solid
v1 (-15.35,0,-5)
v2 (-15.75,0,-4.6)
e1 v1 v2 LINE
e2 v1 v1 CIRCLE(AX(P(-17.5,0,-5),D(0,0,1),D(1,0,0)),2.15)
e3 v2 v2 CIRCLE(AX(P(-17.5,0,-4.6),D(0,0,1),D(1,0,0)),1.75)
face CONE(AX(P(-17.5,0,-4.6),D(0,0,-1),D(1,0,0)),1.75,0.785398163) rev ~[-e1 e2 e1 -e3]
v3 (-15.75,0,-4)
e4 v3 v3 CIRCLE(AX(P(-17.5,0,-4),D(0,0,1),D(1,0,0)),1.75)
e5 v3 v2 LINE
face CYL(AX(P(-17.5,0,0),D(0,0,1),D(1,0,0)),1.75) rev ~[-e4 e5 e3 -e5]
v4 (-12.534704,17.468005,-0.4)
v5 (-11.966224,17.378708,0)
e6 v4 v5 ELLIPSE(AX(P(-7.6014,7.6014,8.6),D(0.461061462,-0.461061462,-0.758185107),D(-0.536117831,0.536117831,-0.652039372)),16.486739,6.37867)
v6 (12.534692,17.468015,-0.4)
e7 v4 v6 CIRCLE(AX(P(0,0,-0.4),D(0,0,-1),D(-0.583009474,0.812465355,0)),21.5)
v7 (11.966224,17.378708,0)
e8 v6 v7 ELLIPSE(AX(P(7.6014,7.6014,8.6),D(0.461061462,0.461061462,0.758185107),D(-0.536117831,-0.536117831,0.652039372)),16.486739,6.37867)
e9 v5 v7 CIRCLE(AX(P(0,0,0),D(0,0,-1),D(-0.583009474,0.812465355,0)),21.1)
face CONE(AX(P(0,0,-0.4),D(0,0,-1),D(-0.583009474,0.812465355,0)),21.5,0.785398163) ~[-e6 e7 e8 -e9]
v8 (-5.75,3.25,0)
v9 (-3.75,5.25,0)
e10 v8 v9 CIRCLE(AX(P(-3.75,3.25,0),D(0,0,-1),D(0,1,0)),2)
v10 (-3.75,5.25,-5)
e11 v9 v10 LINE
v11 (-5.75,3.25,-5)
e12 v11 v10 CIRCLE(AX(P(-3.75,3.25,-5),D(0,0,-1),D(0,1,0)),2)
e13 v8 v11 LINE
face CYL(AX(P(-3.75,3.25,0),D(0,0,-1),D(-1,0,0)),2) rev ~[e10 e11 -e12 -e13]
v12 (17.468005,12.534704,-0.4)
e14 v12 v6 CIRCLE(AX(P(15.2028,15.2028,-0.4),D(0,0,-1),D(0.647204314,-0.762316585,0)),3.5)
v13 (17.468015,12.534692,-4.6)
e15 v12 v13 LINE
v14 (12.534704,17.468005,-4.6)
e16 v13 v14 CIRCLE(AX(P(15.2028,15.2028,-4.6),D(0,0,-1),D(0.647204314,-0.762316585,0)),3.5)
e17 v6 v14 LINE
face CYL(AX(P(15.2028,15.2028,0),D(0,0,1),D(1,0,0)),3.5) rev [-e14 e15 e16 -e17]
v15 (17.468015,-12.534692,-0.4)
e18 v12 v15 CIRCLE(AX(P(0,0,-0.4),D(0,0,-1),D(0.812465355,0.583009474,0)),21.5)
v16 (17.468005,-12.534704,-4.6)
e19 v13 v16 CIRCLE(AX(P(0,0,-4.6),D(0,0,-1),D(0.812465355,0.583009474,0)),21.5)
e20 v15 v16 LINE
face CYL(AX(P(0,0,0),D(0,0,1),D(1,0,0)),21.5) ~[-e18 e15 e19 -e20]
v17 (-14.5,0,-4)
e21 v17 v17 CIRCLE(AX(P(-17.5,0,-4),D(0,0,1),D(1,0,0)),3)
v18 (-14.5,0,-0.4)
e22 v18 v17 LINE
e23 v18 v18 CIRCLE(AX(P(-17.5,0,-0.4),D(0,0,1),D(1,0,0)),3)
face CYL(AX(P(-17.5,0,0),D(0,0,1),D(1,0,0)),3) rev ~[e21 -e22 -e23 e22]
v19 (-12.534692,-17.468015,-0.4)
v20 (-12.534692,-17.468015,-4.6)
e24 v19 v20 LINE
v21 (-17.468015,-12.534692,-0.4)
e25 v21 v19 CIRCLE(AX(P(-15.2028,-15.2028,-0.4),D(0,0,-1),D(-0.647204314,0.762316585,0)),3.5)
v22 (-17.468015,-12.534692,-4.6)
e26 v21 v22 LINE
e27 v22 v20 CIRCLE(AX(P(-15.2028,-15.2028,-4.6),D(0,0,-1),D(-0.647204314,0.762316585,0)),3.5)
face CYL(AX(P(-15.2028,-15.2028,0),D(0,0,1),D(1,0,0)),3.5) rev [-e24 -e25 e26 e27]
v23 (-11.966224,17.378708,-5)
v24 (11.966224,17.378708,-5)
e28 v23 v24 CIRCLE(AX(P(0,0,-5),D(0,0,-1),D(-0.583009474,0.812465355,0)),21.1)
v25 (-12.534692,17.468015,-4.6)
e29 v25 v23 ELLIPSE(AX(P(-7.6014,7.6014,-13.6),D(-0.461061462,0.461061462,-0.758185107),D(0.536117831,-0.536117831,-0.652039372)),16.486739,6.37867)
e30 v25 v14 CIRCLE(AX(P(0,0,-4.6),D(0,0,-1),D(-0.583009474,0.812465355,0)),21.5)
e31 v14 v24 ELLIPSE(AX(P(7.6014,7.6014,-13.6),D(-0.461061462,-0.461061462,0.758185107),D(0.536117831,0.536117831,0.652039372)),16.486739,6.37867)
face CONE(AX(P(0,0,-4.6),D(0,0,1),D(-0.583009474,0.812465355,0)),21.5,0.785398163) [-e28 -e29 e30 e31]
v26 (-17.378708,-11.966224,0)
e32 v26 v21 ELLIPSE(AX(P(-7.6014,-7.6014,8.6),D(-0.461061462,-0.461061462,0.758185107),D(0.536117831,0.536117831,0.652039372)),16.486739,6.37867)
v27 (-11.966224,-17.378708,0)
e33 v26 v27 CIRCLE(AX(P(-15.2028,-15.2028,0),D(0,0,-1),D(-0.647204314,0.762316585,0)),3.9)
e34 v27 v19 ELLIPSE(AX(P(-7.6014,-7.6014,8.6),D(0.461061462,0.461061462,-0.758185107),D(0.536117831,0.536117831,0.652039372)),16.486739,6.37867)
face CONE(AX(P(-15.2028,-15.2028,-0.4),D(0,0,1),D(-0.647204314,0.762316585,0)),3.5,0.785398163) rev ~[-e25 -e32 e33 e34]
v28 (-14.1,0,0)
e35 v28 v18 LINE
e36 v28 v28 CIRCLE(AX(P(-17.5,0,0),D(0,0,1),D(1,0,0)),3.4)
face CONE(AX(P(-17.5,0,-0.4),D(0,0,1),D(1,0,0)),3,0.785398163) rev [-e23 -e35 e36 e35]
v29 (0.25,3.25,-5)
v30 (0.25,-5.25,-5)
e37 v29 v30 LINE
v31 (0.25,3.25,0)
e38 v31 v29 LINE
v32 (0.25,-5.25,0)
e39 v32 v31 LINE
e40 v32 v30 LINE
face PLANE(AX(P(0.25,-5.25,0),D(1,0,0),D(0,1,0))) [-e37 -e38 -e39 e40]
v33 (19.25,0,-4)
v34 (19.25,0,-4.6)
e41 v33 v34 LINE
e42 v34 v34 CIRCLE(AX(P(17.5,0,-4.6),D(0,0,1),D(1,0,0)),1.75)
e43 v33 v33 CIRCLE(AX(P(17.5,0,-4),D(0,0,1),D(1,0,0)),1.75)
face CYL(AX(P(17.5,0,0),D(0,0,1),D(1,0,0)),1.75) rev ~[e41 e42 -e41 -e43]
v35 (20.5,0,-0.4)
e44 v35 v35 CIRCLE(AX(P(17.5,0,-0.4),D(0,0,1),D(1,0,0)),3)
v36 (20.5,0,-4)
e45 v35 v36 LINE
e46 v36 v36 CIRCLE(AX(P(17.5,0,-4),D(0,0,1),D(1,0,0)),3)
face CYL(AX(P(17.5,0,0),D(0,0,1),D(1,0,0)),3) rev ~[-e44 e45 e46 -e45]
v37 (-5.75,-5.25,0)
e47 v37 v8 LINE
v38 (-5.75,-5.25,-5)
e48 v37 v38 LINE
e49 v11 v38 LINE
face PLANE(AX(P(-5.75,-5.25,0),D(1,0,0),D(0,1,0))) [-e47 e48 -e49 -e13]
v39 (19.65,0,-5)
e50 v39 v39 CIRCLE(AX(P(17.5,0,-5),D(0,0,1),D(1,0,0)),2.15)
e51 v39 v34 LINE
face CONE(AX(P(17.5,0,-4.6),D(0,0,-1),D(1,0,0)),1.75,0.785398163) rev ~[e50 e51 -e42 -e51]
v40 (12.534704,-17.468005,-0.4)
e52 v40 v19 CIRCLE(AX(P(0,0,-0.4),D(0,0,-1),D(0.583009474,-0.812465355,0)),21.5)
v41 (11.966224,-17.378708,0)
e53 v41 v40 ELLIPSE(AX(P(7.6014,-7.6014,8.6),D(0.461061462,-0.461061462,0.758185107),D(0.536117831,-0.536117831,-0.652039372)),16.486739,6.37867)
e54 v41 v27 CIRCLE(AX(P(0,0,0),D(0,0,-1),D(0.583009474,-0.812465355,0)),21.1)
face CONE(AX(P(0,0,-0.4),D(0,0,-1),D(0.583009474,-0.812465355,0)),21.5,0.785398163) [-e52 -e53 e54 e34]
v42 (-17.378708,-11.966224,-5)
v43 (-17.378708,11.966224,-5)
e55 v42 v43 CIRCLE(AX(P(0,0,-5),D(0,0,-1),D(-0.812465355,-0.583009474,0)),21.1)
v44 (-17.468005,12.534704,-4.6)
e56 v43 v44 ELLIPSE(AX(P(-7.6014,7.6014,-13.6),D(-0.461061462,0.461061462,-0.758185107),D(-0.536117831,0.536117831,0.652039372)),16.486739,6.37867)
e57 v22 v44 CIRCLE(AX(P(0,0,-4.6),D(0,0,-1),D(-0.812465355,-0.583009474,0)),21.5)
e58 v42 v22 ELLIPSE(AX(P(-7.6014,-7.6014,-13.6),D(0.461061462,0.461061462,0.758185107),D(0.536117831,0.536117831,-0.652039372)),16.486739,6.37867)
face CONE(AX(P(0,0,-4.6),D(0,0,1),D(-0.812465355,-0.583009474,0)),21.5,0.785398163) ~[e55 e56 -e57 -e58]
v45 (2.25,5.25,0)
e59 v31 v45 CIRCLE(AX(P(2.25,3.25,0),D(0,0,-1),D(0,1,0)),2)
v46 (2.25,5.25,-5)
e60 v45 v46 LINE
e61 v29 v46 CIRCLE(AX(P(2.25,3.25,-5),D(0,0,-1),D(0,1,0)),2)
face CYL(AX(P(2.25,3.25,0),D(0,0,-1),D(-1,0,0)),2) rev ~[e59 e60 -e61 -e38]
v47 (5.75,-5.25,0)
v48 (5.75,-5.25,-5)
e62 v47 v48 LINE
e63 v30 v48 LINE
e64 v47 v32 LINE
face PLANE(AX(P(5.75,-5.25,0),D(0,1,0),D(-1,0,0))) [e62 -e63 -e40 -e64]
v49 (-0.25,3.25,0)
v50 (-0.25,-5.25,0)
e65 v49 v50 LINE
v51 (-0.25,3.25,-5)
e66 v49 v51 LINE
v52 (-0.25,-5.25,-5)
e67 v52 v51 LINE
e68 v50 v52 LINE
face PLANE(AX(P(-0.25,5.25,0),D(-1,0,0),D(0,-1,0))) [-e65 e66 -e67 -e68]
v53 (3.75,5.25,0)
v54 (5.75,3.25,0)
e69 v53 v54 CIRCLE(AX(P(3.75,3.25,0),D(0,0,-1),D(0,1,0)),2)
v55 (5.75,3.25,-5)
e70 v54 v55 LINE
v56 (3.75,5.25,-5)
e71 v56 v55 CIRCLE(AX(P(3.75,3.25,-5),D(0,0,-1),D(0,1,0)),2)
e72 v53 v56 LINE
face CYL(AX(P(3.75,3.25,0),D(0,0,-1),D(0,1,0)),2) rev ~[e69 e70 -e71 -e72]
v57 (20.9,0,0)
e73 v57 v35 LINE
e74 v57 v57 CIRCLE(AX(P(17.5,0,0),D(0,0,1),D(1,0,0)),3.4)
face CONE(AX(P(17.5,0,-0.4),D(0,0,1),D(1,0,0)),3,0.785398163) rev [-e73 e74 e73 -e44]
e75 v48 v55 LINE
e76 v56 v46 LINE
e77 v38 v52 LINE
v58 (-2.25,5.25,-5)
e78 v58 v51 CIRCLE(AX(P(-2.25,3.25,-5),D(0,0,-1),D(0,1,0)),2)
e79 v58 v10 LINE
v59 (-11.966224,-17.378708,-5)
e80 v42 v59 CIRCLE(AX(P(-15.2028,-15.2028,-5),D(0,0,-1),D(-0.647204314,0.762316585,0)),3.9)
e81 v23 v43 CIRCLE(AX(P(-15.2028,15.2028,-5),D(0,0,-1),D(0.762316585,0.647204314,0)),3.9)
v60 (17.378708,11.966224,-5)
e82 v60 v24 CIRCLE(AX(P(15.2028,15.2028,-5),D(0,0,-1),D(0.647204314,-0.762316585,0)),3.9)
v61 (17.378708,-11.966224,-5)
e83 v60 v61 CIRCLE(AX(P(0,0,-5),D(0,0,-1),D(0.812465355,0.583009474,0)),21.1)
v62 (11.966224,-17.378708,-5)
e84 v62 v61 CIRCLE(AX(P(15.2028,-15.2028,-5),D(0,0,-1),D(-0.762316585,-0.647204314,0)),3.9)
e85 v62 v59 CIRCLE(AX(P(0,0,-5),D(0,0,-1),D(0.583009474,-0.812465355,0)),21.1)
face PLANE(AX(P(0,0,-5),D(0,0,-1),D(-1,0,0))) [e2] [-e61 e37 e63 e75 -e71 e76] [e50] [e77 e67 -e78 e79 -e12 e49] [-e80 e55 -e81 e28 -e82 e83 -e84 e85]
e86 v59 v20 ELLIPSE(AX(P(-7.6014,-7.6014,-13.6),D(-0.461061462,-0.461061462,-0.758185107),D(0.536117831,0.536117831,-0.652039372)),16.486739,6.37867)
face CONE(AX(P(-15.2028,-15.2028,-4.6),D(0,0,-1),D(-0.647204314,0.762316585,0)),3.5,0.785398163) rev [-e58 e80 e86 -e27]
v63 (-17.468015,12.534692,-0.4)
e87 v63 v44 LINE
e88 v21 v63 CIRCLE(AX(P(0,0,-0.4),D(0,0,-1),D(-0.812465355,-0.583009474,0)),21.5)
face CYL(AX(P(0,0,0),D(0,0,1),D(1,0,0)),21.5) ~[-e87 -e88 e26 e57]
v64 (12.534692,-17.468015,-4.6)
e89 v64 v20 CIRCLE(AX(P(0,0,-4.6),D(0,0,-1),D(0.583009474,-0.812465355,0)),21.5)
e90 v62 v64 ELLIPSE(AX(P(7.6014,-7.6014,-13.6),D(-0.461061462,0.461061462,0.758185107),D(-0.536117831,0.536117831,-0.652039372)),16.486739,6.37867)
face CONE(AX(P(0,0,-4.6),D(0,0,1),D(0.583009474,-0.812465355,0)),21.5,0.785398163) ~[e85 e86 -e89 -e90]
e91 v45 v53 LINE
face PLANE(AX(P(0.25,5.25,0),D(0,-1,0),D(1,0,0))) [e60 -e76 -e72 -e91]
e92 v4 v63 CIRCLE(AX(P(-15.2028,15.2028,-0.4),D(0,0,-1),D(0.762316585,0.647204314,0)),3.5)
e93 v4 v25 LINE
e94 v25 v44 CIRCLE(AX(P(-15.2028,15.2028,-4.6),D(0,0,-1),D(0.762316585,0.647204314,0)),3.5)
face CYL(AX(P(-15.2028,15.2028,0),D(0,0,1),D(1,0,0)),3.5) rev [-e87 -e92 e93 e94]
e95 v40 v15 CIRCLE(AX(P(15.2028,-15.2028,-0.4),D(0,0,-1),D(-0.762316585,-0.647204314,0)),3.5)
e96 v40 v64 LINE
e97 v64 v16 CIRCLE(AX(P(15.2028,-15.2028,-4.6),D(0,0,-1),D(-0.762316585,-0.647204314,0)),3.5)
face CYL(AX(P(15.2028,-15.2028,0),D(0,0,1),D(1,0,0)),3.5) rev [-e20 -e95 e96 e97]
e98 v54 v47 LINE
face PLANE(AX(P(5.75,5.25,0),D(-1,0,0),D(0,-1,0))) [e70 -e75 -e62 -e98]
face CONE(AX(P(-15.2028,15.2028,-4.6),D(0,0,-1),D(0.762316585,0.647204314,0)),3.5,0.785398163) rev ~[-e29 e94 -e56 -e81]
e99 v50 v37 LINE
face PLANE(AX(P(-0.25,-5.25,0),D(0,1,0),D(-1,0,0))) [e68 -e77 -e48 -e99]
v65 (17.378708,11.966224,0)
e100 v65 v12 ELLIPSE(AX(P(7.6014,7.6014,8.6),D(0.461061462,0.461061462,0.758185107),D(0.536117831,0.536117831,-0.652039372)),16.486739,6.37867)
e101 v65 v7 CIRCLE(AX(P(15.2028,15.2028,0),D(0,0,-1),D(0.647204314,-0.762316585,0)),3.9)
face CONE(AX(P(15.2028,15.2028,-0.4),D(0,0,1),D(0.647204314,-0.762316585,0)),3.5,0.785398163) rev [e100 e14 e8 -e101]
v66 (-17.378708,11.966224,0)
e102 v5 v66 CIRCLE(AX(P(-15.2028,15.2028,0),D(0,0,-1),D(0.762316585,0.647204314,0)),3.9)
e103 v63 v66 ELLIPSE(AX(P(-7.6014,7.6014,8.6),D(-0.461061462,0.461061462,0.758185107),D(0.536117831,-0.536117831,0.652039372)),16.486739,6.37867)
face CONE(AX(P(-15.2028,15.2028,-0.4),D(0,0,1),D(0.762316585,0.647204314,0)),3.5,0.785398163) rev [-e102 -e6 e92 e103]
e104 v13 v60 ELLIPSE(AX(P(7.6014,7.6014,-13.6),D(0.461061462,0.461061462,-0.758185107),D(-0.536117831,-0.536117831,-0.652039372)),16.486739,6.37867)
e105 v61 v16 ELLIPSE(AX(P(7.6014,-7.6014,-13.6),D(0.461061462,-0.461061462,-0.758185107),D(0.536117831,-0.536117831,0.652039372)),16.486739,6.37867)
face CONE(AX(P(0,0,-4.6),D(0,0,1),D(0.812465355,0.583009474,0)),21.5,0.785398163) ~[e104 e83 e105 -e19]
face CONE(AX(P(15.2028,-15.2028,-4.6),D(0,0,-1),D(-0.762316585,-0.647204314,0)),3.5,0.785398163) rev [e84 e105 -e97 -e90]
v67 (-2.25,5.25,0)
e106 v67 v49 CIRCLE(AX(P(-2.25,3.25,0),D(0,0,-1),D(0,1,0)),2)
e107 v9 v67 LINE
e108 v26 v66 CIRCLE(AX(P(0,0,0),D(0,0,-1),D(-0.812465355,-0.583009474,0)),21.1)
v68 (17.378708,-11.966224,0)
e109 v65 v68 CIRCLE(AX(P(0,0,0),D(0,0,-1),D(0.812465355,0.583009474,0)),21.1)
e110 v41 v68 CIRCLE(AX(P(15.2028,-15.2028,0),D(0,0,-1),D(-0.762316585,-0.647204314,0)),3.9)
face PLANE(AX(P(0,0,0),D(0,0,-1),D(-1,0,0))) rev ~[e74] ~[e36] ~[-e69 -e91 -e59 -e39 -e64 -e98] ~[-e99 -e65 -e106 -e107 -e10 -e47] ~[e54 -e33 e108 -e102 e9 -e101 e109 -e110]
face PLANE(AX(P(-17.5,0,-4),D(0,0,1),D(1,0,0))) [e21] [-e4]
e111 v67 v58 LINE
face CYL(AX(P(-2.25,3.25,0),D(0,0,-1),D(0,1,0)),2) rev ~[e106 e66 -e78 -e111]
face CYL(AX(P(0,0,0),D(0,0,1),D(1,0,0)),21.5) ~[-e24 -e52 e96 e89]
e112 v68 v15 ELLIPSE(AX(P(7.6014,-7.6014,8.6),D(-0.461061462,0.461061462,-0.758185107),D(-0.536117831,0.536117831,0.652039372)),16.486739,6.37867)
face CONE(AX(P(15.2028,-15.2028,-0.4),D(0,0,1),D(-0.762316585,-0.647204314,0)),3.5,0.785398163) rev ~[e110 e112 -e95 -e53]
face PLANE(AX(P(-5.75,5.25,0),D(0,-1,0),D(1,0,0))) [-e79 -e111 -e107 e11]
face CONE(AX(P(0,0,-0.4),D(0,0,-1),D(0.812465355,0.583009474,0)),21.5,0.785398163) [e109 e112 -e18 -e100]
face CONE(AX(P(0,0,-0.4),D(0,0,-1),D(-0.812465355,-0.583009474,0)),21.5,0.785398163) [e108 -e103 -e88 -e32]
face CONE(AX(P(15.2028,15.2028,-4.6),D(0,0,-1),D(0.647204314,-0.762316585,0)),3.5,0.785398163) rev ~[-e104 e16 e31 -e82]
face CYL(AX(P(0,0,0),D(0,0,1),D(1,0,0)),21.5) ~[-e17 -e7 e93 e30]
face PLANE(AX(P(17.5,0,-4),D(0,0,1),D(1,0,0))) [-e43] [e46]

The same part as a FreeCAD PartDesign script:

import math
import FreeCAD as App
import Part
import Sketcher

V = App.Vector


def edges_at(feature, points):
    """Names of the edges that pass closest to the given points."""
    edges = feature.Shape.Edges
    near = lambda p: min(range(len(edges)), key=lambda i: edges[i].distToShape(Part.Vertex(*p))[0])
    return sorted({f"Edge{near(p) + 1}" for p in points})


def add_polygon(sketch, points):
    """Adds a closed chain of lines whose ends are joined by coincident constraints."""
    first, n = sketch.GeometryCount, len(points)
    for a, b in zip(points, points[1:] + points[:1]):
        sketch.addGeometry(Part.LineSegment(App.Vector(*a, 0), App.Vector(*b, 0)), False)
    for i in range(n):
        sketch.addConstraint(Sketcher.Constraint("Coincident", first + i, 2, first + (i + 1) % n, 1))

doc = App.newDocument("Part")
params = doc.addObject("Spreadsheet::Sheet", "Params")
for row, (alias, value) in enumerate([
    ("sketch1_radius", "21.5 mm"),
    ("sketch1_radius2", "3.5 mm"),
    ("pad1_length", "5 mm"),
    ("sketch2_diameter", "3.5 mm"),
    ("sketch3_diameter", "6 mm"),
    ("pocket2_length", "4 mm"),
    ("chamfer_size", "0.4 mm"),
    ("sketch4_width", "5.5 mm"),
    ("sketch4_height", "10.5 mm"),
    ("fillet_radius", "2 mm"),
], start=1):
    params.set(f"A{row}", alias)
    params.set(f"B{row}", "=" + value)
    params.setAlias(f"B{row}", alias)

body = doc.addObject("PartDesign::Body", "Body")

# Sketch on XY plane
sketch1 = body.newObject("Sketcher::SketchObject", "Sketch")
sketch1.AttachmentSupport = (doc.getObject("XY_Plane"), [""])
sketch1.MapMode = "FlatFace"
sketch1.addGeometry(Part.ArcOfCircle(Part.Circle(V(0, 0, 0), V(0, 0, 1), 21.499994), math.radians(54.337507), math.radians(125.662493)), False)
sketch1.addGeometry(Part.ArcOfCircle(Part.Circle(V(-15.2028, 15.2028, 0), V(0, 0, 1), 3.499984), math.radians(-130.331046), math.radians(40.331046)), False)
sketch1.addGeometry(Part.ArcOfCircle(Part.Circle(V(0, 0, 0), V(0, 0, 1), 21.499994), math.radians(144.337507), math.radians(215.662493)), False)
sketch1.addGeometry(Part.ArcOfCircle(Part.Circle(V(-15.2028, -15.2028, 0), V(0, 0, 1), 3.499984), math.radians(-40.331046), math.radians(130.331046)), False)
sketch1.addGeometry(Part.ArcOfCircle(Part.Circle(V(0, 0, 0), V(0, 0, 1), 21.499994), math.radians(-125.662493), math.radians(-54.337507)), False)
sketch1.addGeometry(Part.ArcOfCircle(Part.Circle(V(15.2028, -15.2028, 0), V(0, 0, 1), 3.499984), math.radians(49.668954), math.radians(220.331046)), False)
sketch1.addGeometry(Part.ArcOfCircle(Part.Circle(V(0, 0, 0), V(0, 0, 1), 21.499994), math.radians(-35.662493), math.radians(35.662493)), False)
sketch1.addGeometry(Part.ArcOfCircle(Part.Circle(V(15.2028, 15.2028, 0), V(0, 0, 1), 3.499984), math.radians(139.668954), math.radians(310.331046)), False)
sketch1.addConstraint(Sketcher.Constraint("Coincident", 0, 2, 1, 2))
sketch1.addConstraint(Sketcher.Constraint("Coincident", 1, 1, 2, 1))
sketch1.addConstraint(Sketcher.Constraint("Coincident", 2, 2, 3, 2))
sketch1.addConstraint(Sketcher.Constraint("Coincident", 3, 1, 4, 1))
sketch1.addConstraint(Sketcher.Constraint("Coincident", 4, 2, 5, 2))
sketch1.addConstraint(Sketcher.Constraint("Coincident", 5, 1, 6, 1))
sketch1.addConstraint(Sketcher.Constraint("Coincident", 6, 2, 7, 2))
sketch1.addConstraint(Sketcher.Constraint("Coincident", 7, 1, 0, 1))
sketch1.addConstraint(Sketcher.Constraint("Coincident", 0, 3, -1, 1))
sketch1.addConstraint(Sketcher.Constraint("Coincident", 2, 3, -1, 1))
sketch1.addConstraint(Sketcher.Constraint("Coincident", 4, 3, -1, 1))
sketch1.addConstraint(Sketcher.Constraint("Coincident", 6, 3, -1, 1))
sketch1.addConstraint(Sketcher.Constraint("Equal", 0, 2))
sketch1.addConstraint(Sketcher.Constraint("Equal", 1, 3))
sketch1.addConstraint(Sketcher.Constraint("Equal", 2, 4))
sketch1.addConstraint(Sketcher.Constraint("Equal", 3, 5))
sketch1.addConstraint(Sketcher.Constraint("Equal", 4, 6))
sketch1.addConstraint(Sketcher.Constraint("Equal", 5, 7))
sketch1.addConstraint(Sketcher.Constraint("Symmetric", 1, 3, 5, 3, -1, 1))
sketch1.addConstraint(Sketcher.Constraint("Symmetric", 3, 3, 7, 3, -1, 1))
sketch1.addConstraint(Sketcher.Constraint("Symmetric", 3, 3, 5, 3, -2))
sketch1.addConstraint(Sketcher.Constraint("Radius", 0, 21.5))
sketch1.addConstraint(Sketcher.Constraint("Radius", 1, 3.5))
sketch1.addConstraint(Sketcher.Constraint("DistanceY", -1, 1, 0, 2, 17.468))
sketch1.addConstraint(Sketcher.Constraint("DistanceX", 1, 1, -1, 1, 17.468))
sketch1.setExpression("Constraints[21]", "Params.sketch1_radius")
sketch1.setExpression("Constraints[22]", "Params.sketch1_radius2")
pad1 = body.newObject("PartDesign::Pad", "Pad")
pad1.Profile = sketch1
pad1.setExpression("Length", "Params.pad1_length")
pad1.Reversed = True

# Sketch on XY plane
sketch2 = body.newObject("Sketcher::SketchObject", "Sketch001")
sketch2.AttachmentSupport = (doc.getObject("XY_Plane"), [""])
sketch2.MapMode = "FlatFace"
sketch2.addGeometry(Part.Circle(V(-17.5, 0, 0), V(0, 0, 1), 1.75), False)
sketch2.addGeometry(Part.Circle(V(17.5, 0, 0), V(0, 0, 1), 1.75), False)
sketch2.addConstraint(Sketcher.Constraint("Equal", 0, 1))
sketch2.addConstraint(Sketcher.Constraint("Symmetric", 0, 3, 1, 3, -1, 1))
sketch2.addConstraint(Sketcher.Constraint("PointOnObject", 0, 3, -1))
sketch2.addConstraint(Sketcher.Constraint("Diameter", 0, 3.5))
sketch2.addConstraint(Sketcher.Constraint("DistanceX", 0, 3, 1, 3, 35.0))
sketch2.setExpression("Constraints[3]", "Params.sketch2_diameter")
pocket1 = body.newObject("PartDesign::Pocket", "Pocket")
pocket1.Profile = sketch2
pocket1.Type = "ThroughAll"

# Sketch on XY plane
sketch3 = body.newObject("Sketcher::SketchObject", "Sketch002")
sketch3.AttachmentSupport = (doc.getObject("XY_Plane"), [""])
sketch3.MapMode = "FlatFace"
sketch3.addGeometry(Part.Circle(V(-17.5, 0, 0), V(0, 0, 1), 3), False)
sketch3.addGeometry(Part.Circle(V(17.5, 0, 0), V(0, 0, 1), 3), False)
sketch3.addConstraint(Sketcher.Constraint("Equal", 0, 1))
sketch3.addConstraint(Sketcher.Constraint("Symmetric", 0, 3, 1, 3, -1, 1))
sketch3.addConstraint(Sketcher.Constraint("PointOnObject", 0, 3, -1))
sketch3.addConstraint(Sketcher.Constraint("Diameter", 0, 6.0))
sketch3.addConstraint(Sketcher.Constraint("DistanceX", 0, 3, 1, 3, 35.0))
sketch3.setExpression("Constraints[3]", "Params.sketch3_diameter")
pocket2 = body.newObject("PartDesign::Pocket", "Pocket001")
pocket2.Profile = sketch3
pocket2.setExpression("Length", "Params.pocket2_length")
doc.recompute()

chamfer = body.newObject("PartDesign::Chamfer", "Chamfer")
chamfer.Base = (pocket2, edges_at(pocket2, [
    (-20.5, 0, 0),
    (14.5, 0, 0),
    (-12.728, -12.728, 0),
    (0, -21.5, 0),
    (12.728, -12.728, 0),
    (21.5, 0, 0),
    (12.728, 12.728, 0),
    (0, 21.5, 0),
    (-12.728, 12.728, 0),
    (-21.5, 0, 0),
    (15.75, 0, -5),
    (-19.25, 0, -5),
    (-12.728, -12.728, -5),
    (-21.5, 0, -5),
    (-12.728, 12.728, -5),
    (0, 21.5, -5),
    (12.728, 12.728, -5),
    (21.5, 0, -5),
    (12.728, -12.728, -5),
    (0, -21.5, -5),
]))
chamfer.setExpression("Size", "Params.chamfer_size")

# Sketch on XY plane
sketch4 = body.newObject("Sketcher::SketchObject", "Sketch003")
sketch4.AttachmentSupport = (doc.getObject("XY_Plane"), [""])
sketch4.MapMode = "FlatFace"
add_polygon(sketch4, [(-5.75, 5.25), (-5.75, -5.25), (-0.25, -5.25), (-0.25, 5.25)])  # lines 0-3
add_polygon(sketch4, [(0.25, -5.25), (5.75, -5.25), (5.75, 5.25), (0.25, 5.25)])  # lines 4-7
sketch4.addConstraint(Sketcher.Constraint("Vertical", 0))
sketch4.addConstraint(Sketcher.Constraint("Horizontal", 1))
sketch4.addConstraint(Sketcher.Constraint("Vertical", 2))
sketch4.addConstraint(Sketcher.Constraint("Horizontal", 3))
sketch4.addConstraint(Sketcher.Constraint("Horizontal", 4))
sketch4.addConstraint(Sketcher.Constraint("Vertical", 5))
sketch4.addConstraint(Sketcher.Constraint("Horizontal", 6))
sketch4.addConstraint(Sketcher.Constraint("Vertical", 7))
sketch4.addConstraint(Sketcher.Constraint("Symmetric", 3, 2, 4, 2, -1, 1))
sketch4.addConstraint(Sketcher.Constraint("Symmetric", 1, 2, 6, 2, -1, 1))
sketch4.addConstraint(Sketcher.Constraint("Horizontal", 1, 2, 4, 2))
sketch4.addConstraint(Sketcher.Constraint("DistanceX", 1, 1, 1, 2, 5.5))
sketch4.addConstraint(Sketcher.Constraint("DistanceY", 0, 2, 0, 1, 10.5))
sketch4.addConstraint(Sketcher.Constraint("DistanceX", 1, 2, 4, 2, 6.0))
sketch4.setExpression("Constraints[19]", "Params.sketch4_width")
sketch4.setExpression("Constraints[20]", "Params.sketch4_height")
pocket3 = body.newObject("PartDesign::Pocket", "Pocket002")
pocket3.Profile = sketch4
pocket3.Type = "ThroughAll"
doc.recompute()

fillet = body.newObject("PartDesign::Fillet", "Fillet")
fillet.Base = (pocket3, edges_at(pocket3, [
    (-5.75, 5.25, -2.5),
    (-0.25, 5.25, -2.5),
    (0.25, 5.25, -2.5),
    (5.75, 5.25, -2.5),
]))
fillet.setExpression("Radius", "Params.fillet_radius")

doc.recompute()
